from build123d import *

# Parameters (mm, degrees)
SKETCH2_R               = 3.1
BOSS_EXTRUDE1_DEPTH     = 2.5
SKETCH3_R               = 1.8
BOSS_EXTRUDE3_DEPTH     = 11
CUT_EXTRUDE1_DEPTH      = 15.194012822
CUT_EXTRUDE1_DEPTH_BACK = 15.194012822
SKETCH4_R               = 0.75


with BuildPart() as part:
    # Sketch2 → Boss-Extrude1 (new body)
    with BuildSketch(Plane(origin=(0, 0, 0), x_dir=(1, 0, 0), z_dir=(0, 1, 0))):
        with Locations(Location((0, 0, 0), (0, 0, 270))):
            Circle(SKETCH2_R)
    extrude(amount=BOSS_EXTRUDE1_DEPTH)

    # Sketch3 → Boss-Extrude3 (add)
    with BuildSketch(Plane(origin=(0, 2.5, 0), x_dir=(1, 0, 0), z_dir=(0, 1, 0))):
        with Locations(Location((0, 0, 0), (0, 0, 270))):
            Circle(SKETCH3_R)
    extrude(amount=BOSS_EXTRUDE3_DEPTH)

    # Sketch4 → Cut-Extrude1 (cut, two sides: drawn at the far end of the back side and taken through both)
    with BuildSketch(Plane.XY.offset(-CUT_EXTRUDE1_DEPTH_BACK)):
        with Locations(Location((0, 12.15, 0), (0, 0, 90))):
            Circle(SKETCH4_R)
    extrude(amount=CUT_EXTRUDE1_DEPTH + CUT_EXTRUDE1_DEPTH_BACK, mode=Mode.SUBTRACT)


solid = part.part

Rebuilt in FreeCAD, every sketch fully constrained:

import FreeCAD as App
import Part
import Sketcher
from FreeCAD import Vector

doc = App.newDocument("Part")
body = doc.addObject("PartDesign::Body", "Body")

sketch1 = doc.addObject("Sketcher::SketchObject", "Sketch")
body.addObject(sketch1)
sketch1.AttachmentSupport = (doc.XZ_Plane, [""])
sketch1.MapMode = "FlatFace"
sketch1.addGeometry(Part.Circle(Vector(0, 0, 0), Vector(0, 0, 1), 3.1), False)
sketch1.addConstraint(Sketcher.Constraint("Coincident", 0, 3, -1, 1))
sketch1.addConstraint(Sketcher.Constraint("Diameter", 0, 6.2))
pad1 = doc.addObject("PartDesign::Pad", "Pad")
body.addObject(pad1)
pad1.Profile = sketch1
pad1.Length = 2.5
pad1.Reversed = True

sketch2 = doc.addObject("Sketcher::SketchObject", "Sketch001")
body.addObject(sketch2)
sketch2.AttachmentSupport = (doc.XZ_Plane, [""])
sketch2.MapMode = "FlatFace"
sketch2.AttachmentOffset = App.Placement(Vector(0, 0, -2.5), App.Rotation())
sketch2.addGeometry(Part.Circle(Vector(0, 0, 0), Vector(0, 0, 1), 1.8), False)
sketch2.addConstraint(Sketcher.Constraint("Coincident", 0, 3, -1, 1))
sketch2.addConstraint(Sketcher.Constraint("Diameter", 0, 3.6))
pad2 = doc.addObject("PartDesign::Pad", "Pad001")
body.addObject(pad2)
pad2.Profile = sketch2
pad2.Length = 11
pad2.Reversed = True

sketch3 = doc.addObject("Sketcher::SketchObject", "Sketch002")
body.addObject(sketch3)
sketch3.AttachmentSupport = (doc.XY_Plane, [""])
sketch3.MapMode = "FlatFace"
sketch3.addGeometry(Part.Circle(Vector(0, 12.2, 0), Vector(0, 0, 1), 0.8), False)
sketch3.addConstraint(Sketcher.Constraint("PointOnObject", 0, 3, -2))
sketch3.addConstraint(Sketcher.Constraint("Diameter", 0, 1.5))
sketch3.addConstraint(Sketcher.Constraint("DistanceY", -1, 1, 0, 3, 12.15))
pocket1 = doc.addObject("PartDesign::Pocket", "Pocket")
body.addObject(pocket1)
pocket1.Profile = sketch3
pocket1.Type = "ThroughAll"
pocket1.Midplane = True

doc.recompute()
